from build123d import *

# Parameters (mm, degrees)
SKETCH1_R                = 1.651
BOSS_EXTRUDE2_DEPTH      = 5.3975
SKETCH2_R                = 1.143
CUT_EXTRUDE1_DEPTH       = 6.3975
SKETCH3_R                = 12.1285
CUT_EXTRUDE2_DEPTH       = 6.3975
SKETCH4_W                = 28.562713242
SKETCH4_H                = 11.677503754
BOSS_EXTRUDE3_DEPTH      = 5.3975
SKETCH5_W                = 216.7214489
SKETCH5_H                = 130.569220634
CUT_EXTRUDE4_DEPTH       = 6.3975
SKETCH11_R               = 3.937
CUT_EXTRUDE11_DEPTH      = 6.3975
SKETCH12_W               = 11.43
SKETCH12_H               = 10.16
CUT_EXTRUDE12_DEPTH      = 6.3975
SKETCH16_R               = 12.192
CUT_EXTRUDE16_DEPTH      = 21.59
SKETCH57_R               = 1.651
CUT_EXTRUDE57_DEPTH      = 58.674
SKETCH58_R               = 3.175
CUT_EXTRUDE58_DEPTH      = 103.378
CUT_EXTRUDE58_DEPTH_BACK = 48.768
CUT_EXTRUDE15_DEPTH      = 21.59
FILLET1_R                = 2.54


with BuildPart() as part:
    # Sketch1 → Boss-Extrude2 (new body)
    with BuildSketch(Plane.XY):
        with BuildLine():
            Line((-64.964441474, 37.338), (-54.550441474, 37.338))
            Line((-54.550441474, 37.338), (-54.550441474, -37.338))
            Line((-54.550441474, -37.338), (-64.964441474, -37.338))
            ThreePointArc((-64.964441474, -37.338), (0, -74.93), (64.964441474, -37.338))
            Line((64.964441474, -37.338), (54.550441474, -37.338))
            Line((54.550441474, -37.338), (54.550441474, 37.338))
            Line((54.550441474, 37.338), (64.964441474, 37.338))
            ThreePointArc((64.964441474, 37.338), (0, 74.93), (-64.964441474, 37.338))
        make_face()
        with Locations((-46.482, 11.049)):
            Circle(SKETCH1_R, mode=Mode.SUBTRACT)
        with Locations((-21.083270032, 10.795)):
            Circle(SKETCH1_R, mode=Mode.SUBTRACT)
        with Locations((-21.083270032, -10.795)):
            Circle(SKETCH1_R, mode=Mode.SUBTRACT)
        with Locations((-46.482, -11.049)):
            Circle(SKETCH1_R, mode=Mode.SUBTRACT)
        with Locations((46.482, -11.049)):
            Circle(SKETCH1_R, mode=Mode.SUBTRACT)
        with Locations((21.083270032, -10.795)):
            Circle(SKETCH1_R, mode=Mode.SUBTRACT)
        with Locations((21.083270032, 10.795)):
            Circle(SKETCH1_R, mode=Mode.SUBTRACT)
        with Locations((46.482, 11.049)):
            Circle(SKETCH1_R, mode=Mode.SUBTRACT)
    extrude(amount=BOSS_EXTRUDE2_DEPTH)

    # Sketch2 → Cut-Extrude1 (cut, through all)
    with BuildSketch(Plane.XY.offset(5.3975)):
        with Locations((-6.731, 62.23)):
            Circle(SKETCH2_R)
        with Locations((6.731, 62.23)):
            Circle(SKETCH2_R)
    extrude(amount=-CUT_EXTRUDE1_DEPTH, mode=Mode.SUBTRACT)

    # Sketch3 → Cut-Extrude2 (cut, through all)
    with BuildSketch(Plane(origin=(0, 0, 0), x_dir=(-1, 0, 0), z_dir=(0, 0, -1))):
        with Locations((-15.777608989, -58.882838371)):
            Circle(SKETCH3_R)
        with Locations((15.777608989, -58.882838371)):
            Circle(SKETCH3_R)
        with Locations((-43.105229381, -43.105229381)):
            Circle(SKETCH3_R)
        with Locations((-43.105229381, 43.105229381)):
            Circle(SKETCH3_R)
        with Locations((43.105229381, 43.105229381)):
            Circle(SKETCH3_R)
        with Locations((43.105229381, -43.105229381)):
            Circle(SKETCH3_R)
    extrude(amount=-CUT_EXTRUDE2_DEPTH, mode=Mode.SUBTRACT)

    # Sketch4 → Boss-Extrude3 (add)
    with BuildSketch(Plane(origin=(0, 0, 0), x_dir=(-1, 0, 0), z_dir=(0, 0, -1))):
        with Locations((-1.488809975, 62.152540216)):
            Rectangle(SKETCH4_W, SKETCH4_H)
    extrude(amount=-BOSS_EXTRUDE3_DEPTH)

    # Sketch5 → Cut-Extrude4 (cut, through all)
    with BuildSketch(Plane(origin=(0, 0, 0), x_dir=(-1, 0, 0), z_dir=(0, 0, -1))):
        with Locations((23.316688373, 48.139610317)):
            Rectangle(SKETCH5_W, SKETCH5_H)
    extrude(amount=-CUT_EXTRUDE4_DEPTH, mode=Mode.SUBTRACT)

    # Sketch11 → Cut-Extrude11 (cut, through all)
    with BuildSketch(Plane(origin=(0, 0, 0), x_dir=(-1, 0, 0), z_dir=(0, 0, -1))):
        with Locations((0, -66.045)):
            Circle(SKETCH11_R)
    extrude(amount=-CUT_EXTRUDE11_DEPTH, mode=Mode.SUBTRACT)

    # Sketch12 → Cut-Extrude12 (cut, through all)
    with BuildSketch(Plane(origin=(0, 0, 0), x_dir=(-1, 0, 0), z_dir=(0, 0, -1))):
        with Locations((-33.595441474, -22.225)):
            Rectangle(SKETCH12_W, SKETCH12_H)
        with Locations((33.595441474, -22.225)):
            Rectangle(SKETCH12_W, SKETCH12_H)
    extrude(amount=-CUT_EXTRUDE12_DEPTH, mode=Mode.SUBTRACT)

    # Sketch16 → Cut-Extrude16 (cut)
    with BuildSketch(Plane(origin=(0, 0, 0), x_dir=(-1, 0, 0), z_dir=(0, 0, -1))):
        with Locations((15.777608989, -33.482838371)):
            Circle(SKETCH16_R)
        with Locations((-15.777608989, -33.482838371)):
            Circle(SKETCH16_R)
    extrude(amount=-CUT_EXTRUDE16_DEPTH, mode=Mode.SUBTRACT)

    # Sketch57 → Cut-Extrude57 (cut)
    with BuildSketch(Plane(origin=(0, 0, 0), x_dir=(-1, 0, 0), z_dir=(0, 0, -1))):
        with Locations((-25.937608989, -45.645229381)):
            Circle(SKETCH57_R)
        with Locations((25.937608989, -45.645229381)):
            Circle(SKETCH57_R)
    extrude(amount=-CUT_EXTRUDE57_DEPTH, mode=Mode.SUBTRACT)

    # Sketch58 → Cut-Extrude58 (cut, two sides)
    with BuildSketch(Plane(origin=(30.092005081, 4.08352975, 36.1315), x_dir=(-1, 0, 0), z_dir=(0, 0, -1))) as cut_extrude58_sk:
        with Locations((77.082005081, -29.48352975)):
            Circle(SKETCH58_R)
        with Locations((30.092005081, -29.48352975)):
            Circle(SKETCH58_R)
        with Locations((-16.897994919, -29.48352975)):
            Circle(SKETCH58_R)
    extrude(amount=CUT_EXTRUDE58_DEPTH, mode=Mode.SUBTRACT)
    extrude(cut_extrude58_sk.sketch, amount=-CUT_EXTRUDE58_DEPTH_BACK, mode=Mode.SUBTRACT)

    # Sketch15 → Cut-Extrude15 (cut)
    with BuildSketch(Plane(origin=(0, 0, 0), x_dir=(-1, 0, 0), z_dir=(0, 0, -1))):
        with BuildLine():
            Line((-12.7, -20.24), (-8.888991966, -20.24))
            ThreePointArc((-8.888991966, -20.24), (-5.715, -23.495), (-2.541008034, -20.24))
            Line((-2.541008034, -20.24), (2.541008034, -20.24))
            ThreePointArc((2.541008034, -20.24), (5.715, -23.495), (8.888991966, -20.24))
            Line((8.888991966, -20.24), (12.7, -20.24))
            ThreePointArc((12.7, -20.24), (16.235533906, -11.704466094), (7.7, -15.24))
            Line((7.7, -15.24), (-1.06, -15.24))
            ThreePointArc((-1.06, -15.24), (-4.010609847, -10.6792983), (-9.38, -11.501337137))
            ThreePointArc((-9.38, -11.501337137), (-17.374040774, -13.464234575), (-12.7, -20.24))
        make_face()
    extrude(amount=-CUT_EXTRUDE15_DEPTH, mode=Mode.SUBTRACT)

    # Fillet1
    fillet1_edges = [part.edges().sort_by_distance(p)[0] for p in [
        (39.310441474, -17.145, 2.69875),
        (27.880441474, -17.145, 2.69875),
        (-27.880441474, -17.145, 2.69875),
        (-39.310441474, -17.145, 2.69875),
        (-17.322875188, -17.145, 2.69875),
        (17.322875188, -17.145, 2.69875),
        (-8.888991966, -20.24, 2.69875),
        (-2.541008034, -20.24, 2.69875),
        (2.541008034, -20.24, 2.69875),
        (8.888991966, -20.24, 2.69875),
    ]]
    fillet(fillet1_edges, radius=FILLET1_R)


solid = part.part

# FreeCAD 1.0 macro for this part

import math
import FreeCAD as App
import Part
import Sketcher
from FreeCAD import Vector
Q = App.Units.Quantity


def edges_at(feature, points):
    """Names of the edges that pass closest to the given points."""
    edges = feature.Shape.Edges
    near = lambda p: min(range(len(edges)), key=lambda i: edges[i].distToShape(Part.Vertex(*p))[0])
    return sorted({f"Edge{near(p) + 1}" for p in points})

doc = App.newDocument("Part")
body = doc.addObject("PartDesign::Body", "Body")

sketch1 = body.newObject("Sketcher::SketchObject", "Sketch")
sketch1.AttachmentSupport = (doc.getObject("XY_Plane"), [""])
sketch1.MapMode = "FlatFace"
sketch1.addGeometry([
    Part.LineSegment(Vector(-65, 37.3, 0), Vector(-54.6, 37.3, 0)),
    Part.LineSegment(Vector(-54.6, 37.3, 0), Vector(-54.6, -37.3, 0)),
    Part.LineSegment(Vector(-54.6, -37.3, 0), Vector(-65, -37.3, 0)),
    Part.ArcOfCircle(Part.Circle(Vector(0, 0, 0), Vector(0, 0, 1), 74.9), math.radians(-150), math.radians(-30)),
    Part.LineSegment(Vector(65, -37.3, 0), Vector(54.6, -37.3, 0)),
    Part.LineSegment(Vector(54.6, -37.3, 0), Vector(54.6, 37.3, 0)),
    Part.LineSegment(Vector(54.6, 37.3, 0), Vector(65, 37.3, 0)),
    Part.ArcOfCircle(Part.Circle(Vector(0, 0, 0), Vector(0, 0, 1), 74.9), math.radians(30), math.radians(150)),
    Part.Circle(Vector(-46.5, -11, 0), Vector(0, 0, 1), 1.7),
    Part.Circle(Vector(-21.1, -10.8, 0), Vector(0, 0, 1), 1.7),
    Part.Circle(Vector(21.1, -10.8, 0), Vector(0, 0, 1), 1.7),
    Part.Circle(Vector(46.5, -11, 0), Vector(0, 0, 1), 1.7),
    Part.Circle(Vector(-46.5, 11, 0), Vector(0, 0, 1), 1.7),
    Part.Circle(Vector(-21.1, 10.8, 0), Vector(0, 0, 1), 1.7),
    Part.Circle(Vector(21.1, 10.8, 0), Vector(0, 0, 1), 1.7),
    Part.Circle(Vector(46.5, 11, 0), Vector(0, 0, 1), 1.7),
], False)
sketch1.addConstraint([
    Sketcher.Constraint("Coincident", 0, 2, 1, 1),
    Sketcher.Constraint("Coincident", 1, 2, 2, 1),
    Sketcher.Constraint("Coincident", 2, 2, 3, 1),
    Sketcher.Constraint("Coincident", 3, 2, 4, 1),
    Sketcher.Constraint("Coincident", 4, 2, 5, 1),
    Sketcher.Constraint("Coincident", 5, 2, 6, 1),
    Sketcher.Constraint("Coincident", 6, 2, 7, 1),
    Sketcher.Constraint("Coincident", 7, 2, 0, 1),
    Sketcher.Constraint("Horizontal", 0),
    Sketcher.Constraint("Vertical", 1),
    Sketcher.Constraint("Horizontal", 2),
    Sketcher.Constraint("Horizontal", 4),
    Sketcher.Constraint("Vertical", 5),
    Sketcher.Constraint("Horizontal", 6),
    Sketcher.Constraint("Coincident", 3, 3, -1, 1),
    Sketcher.Constraint("Coincident", 7, 3, -1, 1),
    Sketcher.Constraint("Equal", 3, 7),
    Sketcher.Constraint("Equal", 8, 9),
    Sketcher.Constraint("Equal", 9, 10),
    Sketcher.Constraint("Equal", 10, 11),
    Sketcher.Constraint("Equal", 11, 12),
    Sketcher.Constraint("Equal", 12, 13),
    Sketcher.Constraint("Equal", 13, 14),
    Sketcher.Constraint("Equal", 14, 15),
    Sketcher.Constraint("Symmetric", 11, 3, 12, 3, -1, 1),
    Sketcher.Constraint("Symmetric", 10, 3, 13, 3, -1, 1),
    Sketcher.Constraint("Symmetric", 9, 3, 14, 3, -1, 1),
    Sketcher.Constraint("Symmetric", 8, 3, 15, 3, -1, 1),
    Sketcher.Constraint("Symmetric", 0, 2, 4, 2, -1, 1),
    Sketcher.Constraint("Symmetric", 9, 3, 10, 3, -2),
    Sketcher.Constraint("Symmetric", 8, 3, 11, 3, -2),
    Sketcher.Constraint("Horizontal", 2, 2, 3, 2),
    Sketcher.Constraint("Horizontal", 0, 2, 5, 2),
    Sketcher.Constraint("Diameter", 8, Q("0.13 in")),
    Sketcher.Constraint("Radius", 3, Q("2.95 in")),
    Sketcher.Constraint("DistanceX", 0, 1, 0, 2, Q("0.41 in")),
    Sketcher.Constraint("DistanceY", 1, 2, 1, 1, Q("2.94 in")),
    Sketcher.Constraint("DistanceX", 8, 3, -1, 1, Q("1.83 in")),
    Sketcher.Constraint("DistanceY", 8, 3, 9, 3, Q("0.01 in")),
    Sketcher.Constraint("DistanceY", 8, 3, 12, 3, Q("0.87 in")),
    Sketcher.Constraint("DistanceX", 9, 3, 10, 3, Q("1.6601 in")),
])
pad1 = body.newObject("PartDesign::Pad", "Pad")
pad1.Profile = sketch1
pad1.Length = Q("0.2125 in")

sketch2 = body.newObject("Sketcher::SketchObject", "Sketch001")
sketch2.AttachmentSupport = (doc.getObject("XY_Plane"), [""])
sketch2.MapMode = "FlatFace"
sketch2.AttachmentOffset = App.Placement(Vector(0, 0, 0.2125 * 25.4), App.Rotation())
sketch2.addGeometry([
    Part.Circle(Vector(-6.7, 62.2, 0), Vector(0, 0, 1), 1.1),
    Part.Circle(Vector(6.7, 62.2, 0), Vector(0, 0, 1), 1.1),
], False)
sketch2.addConstraint([
    Sketcher.Constraint("Equal", 0, 1),
    Sketcher.Constraint("Symmetric", 0, 3, 1, 3, -2),
    Sketcher.Constraint("Diameter", 0, Q("0.09 in")),
    Sketcher.Constraint("DistanceY", -1, 1, 0, 3, Q("2.45 in")),
    Sketcher.Constraint("DistanceX", 0, 3, 1, 3, Q("0.53 in")),
])
pocket1 = body.newObject("PartDesign::Pocket", "Pocket")
pocket1.Profile = sketch2
pocket1.Type = "ThroughAll"

sketch3 = body.newObject("Sketcher::SketchObject", "Sketch002")
sketch3.AttachmentSupport = (doc.getObject("XY_Plane"), [""])
sketch3.MapMode = "FlatFace"
sketch3.addGeometry([
    Part.Circle(Vector(16, -59, 0), Vector(0, 0, 1), 12),
    Part.Circle(Vector(-16, -59, 0), Vector(0, 0, 1), 12),
    Part.Circle(Vector(43, -43, 0), Vector(0, 0, 1), 12),
    Part.Circle(Vector(43, 43, 0), Vector(0, 0, 1), 12),
    Part.Circle(Vector(-43, 43, 0), Vector(0, 0, 1), 12),
    Part.Circle(Vector(-43, -43, 0), Vector(0, 0, 1), 12),
], False)
sketch3.addConstraint([
    Sketcher.Constraint("Equal", 0, 1),
    Sketcher.Constraint("Equal", 1, 2),
    Sketcher.Constraint("Equal", 2, 3),
    Sketcher.Constraint("Equal", 3, 4),
    Sketcher.Constraint("Equal", 4, 5),
    Sketcher.Constraint("Symmetric", 2, 3, 4, 3, -1, 1),
    Sketcher.Constraint("Symmetric", 3, 3, 5, 3, -1, 1),
    Sketcher.Constraint("Symmetric", 0, 3, 1, 3, -2),
    Sketcher.Constraint("Symmetric", 3, 3, 4, 3, -2),
    Sketcher.Constraint("Diameter", 0, Q("0.955 in")),
    Sketcher.Constraint("DistanceX", -1, 1, 0, 3, Q("15.777609 mm")),
    Sketcher.Constraint("DistanceY", 0, 3, -1, 1, Q("58.882838 mm")),
    Sketcher.Constraint("DistanceX", -1, 1, 2, 3, Q("43.105229 mm")),
    Sketcher.Constraint("DistanceY", 2, 3, -1, 1, Q("43.105229 mm")),
])
pocket2 = body.newObject("PartDesign::Pocket", "Pocket001")
pocket2.Profile = sketch3
pocket2.Type = "ThroughAll"
pocket2.Reversed = True

sketch4 = body.newObject("Sketcher::SketchObject", "Sketch003")
sketch4.AttachmentSupport = (doc.getObject("XY_Plane"), [""])
sketch4.MapMode = "FlatFace"
sketch4.addGeometry([
    Part.LineSegment(Vector(16, 68, 0), Vector(16, 56, 0)),
    Part.LineSegment(Vector(16, 56, 0), Vector(-13, 56, 0)),
    Part.LineSegment(Vector(-13, 56, 0), Vector(-13, 68, 0)),
    Part.LineSegment(Vector(-13, 68, 0), Vector(16, 68, 0)),
], False)
sketch4.addConstraint([
    Sketcher.Constraint("Coincident", 0, 2, 1, 1),
    Sketcher.Constraint("Coincident", 1, 2, 2, 1),
    Sketcher.Constraint("Coincident", 2, 2, 3, 1),
    Sketcher.Constraint("Coincident", 3, 2, 0, 1),
    Sketcher.Constraint("Vertical", 0),
    Sketcher.Constraint("Horizontal", 1),
    Sketcher.Constraint("Vertical", 2),
    Sketcher.Constraint("Horizontal", 3),
    Sketcher.Constraint("DistanceX", 1, 2, 1, 1, Q("28.562713 mm")),
    Sketcher.Constraint("DistanceY", 0, 2, 0, 1, Q("11.677504 mm")),
    Sketcher.Constraint("DistanceY", -1, 1, 0, 2, Q("56.313788 mm")),
    Sketcher.Constraint("DistanceX", -1, 1, 0, 2, Q("15.770167 mm")),
])
pad2 = body.newObject("PartDesign::Pad", "Pad001")
pad2.Profile = sketch4
pad2.Length = Q("0.2125 in")

sketch5 = body.newObject("Sketcher::SketchObject", "Sketch004")
sketch5.AttachmentSupport = (doc.getObject("XY_Plane"), [""])
sketch5.MapMode = "FlatFace"
sketch5.addGeometry([
    Part.LineSegment(Vector(85, 113, 0), Vector(85, -17, 0)),
    Part.LineSegment(Vector(85, -17, 0), Vector(-132, -17, 0)),
    Part.LineSegment(Vector(-132, -17, 0), Vector(-132, 113, 0)),
    Part.LineSegment(Vector(-132, 113, 0), Vector(85, 113, 0)),
], False)
sketch5.addConstraint([
    Sketcher.Constraint("Coincident", 0, 2, 1, 1),
    Sketcher.Constraint("Coincident", 1, 2, 2, 1),
    Sketcher.Constraint("Coincident", 2, 2, 3, 1),
    Sketcher.Constraint("Coincident", 3, 2, 0, 1),
    Sketcher.Constraint("Vertical", 0),
    Sketcher.Constraint("Horizontal", 1),
    Sketcher.Constraint("Vertical", 2),
    Sketcher.Constraint("Horizontal", 3),
    Sketcher.Constraint("DistanceY", 0, 2, -1, 1, Q("0.675 in")),
    Sketcher.Constraint("DistanceX", 1, 2, 1, 1, Q("216.721449 mm")),
    Sketcher.Constraint("DistanceY", 0, 2, 0, 1, Q("130.569221 mm")),
    Sketcher.Constraint("DistanceX", -1, 1, 0, 2, Q("85.044036 mm")),
])
pocket3 = body.newObject("PartDesign::Pocket", "Pocket002")
pocket3.Profile = sketch5
pocket3.Type = "ThroughAll"
pocket3.Reversed = True

sketch6 = body.newObject("Sketcher::SketchObject", "Sketch005")
sketch6.AttachmentSupport = (doc.getObject("XY_Plane"), [""])
sketch6.MapMode = "FlatFace"
sketch6.addGeometry(Part.Circle(Vector(0, -66, 0), Vector(0, 0, 1), 3.9), False)
sketch6.addConstraint([
    Sketcher.Constraint("PointOnObject", 0, 3, -2),
    Sketcher.Constraint("Diameter", 0, Q("0.31 in")),
    Sketcher.Constraint("DistanceY", 0, 3, -1, 1, Q("66.045 mm")),
])
pocket4 = body.newObject("PartDesign::Pocket", "Pocket003")
pocket4.Profile = sketch6
pocket4.Type = "ThroughAll"
pocket4.Reversed = True

sketch7 = body.newObject("Sketcher::SketchObject", "Sketch006")
sketch7.AttachmentSupport = (doc.getObject("XY_Plane"), [""])
sketch7.MapMode = "FlatFace"
sketch7.addGeometry([
    Part.LineSegment(Vector(39, -17, 0), Vector(39, -27, 0)),
    Part.LineSegment(Vector(39, -27, 0), Vector(28, -27, 0)),
    Part.LineSegment(Vector(28, -27, 0), Vector(28, -17, 0)),
    Part.LineSegment(Vector(28, -17, 0), Vector(39, -17, 0)),
    Part.LineSegment(Vector(-28, -17, 0), Vector(-28, -27, 0)),
    Part.LineSegment(Vector(-28, -27, 0), Vector(-39, -27, 0)),
    Part.LineSegment(Vector(-39, -27, 0), Vector(-39, -17, 0)),
    Part.LineSegment(Vector(-39, -17, 0), Vector(-28, -17, 0)),
], False)
sketch7.addConstraint([
    Sketcher.Constraint("Coincident", 0, 2, 1, 1),
    Sketcher.Constraint("Coincident", 1, 2, 2, 1),
    Sketcher.Constraint("Coincident", 2, 2, 3, 1),
    Sketcher.Constraint("Coincident", 3, 2, 0, 1),
    Sketcher.Constraint("Coincident", 4, 2, 5, 1),
    Sketcher.Constraint("Coincident", 5, 2, 6, 1),
    Sketcher.Constraint("Coincident", 6, 2, 7, 1),
    Sketcher.Constraint("Coincident", 7, 2, 4, 1),
    Sketcher.Constraint("Vertical", 0),
    Sketcher.Constraint("Horizontal", 1),
    Sketcher.Constraint("Vertical", 2),
    Sketcher.Constraint("Horizontal", 3),
    Sketcher.Constraint("Vertical", 4),
    Sketcher.Constraint("Horizontal", 5),
    Sketcher.Constraint("Vertical", 6),
    Sketcher.Constraint("Horizontal", 7),
    Sketcher.Constraint("Symmetric", 1, 2, 4, 2, -2),
    Sketcher.Constraint("Symmetric", 3, 2, 6, 2, -2),
    Sketcher.Constraint("DistanceY", 0, 2, 0, 1, Q("0.4 in")),
    Sketcher.Constraint("DistanceX", 1, 2, 1, 1, Q("0.45 in")),
    Sketcher.Constraint("DistanceY", 0, 2, -1, 1, Q("1.075 in")),
    Sketcher.Constraint("DistanceX", -1, 1, 0, 2, Q("39.310441 mm")),
])
pocket5 = body.newObject("PartDesign::Pocket", "Pocket004")
pocket5.Profile = sketch7
pocket5.Type = "ThroughAll"
pocket5.Reversed = True

sketch8 = body.newObject("Sketcher::SketchObject", "Sketch007")
sketch8.AttachmentSupport = (doc.getObject("XY_Plane"), [""])
sketch8.MapMode = "FlatFace"
sketch8.addGeometry([
    Part.Circle(Vector(-16, -33, 0), Vector(0, 0, 1), 12),
    Part.Circle(Vector(16, -33, 0), Vector(0, 0, 1), 12),
], False)
sketch8.addConstraint([
    Sketcher.Constraint("Equal", 0, 1),
    Sketcher.Constraint("Symmetric", 0, 3, 1, 3, -2),
    Sketcher.Constraint("Diameter", 0, Q("0.96 in")),
    Sketcher.Constraint("DistanceX", 0, 3, -1, 1, Q("15.777609 mm")),
    Sketcher.Constraint("DistanceY", 0, 3, -1, 1, Q("33.482838 mm")),
])
pocket6 = body.newObject("PartDesign::Pocket", "Pocket005")
pocket6.Profile = sketch8
pocket6.Length = Q("0.85 in")
pocket6.Reversed = True

sketch9 = body.newObject("Sketcher::SketchObject", "Sketch008")
sketch9.AttachmentSupport = (doc.getObject("XY_Plane"), [""])
sketch9.MapMode = "FlatFace"
sketch9.addGeometry([
    Part.Circle(Vector(25.9, -45.6, 0), Vector(0, 0, 1), 1.7),
    Part.Circle(Vector(-25.9, -45.6, 0), Vector(0, 0, 1), 1.7),
], False)
sketch9.addConstraint([
    Sketcher.Constraint("Equal", 0, 1),
    Sketcher.Constraint("Symmetric", 0, 3, 1, 3, -2),
    Sketcher.Constraint("Diameter", 0, Q("0.13 in")),
    Sketcher.Constraint("DistanceX", -1, 1, 0, 3, Q("25.937609 mm")),
    Sketcher.Constraint("DistanceY", 0, 3, -1, 1, Q("45.645229 mm")),
])
pocket7 = body.newObject("PartDesign::Pocket", "Pocket006")
pocket7.Profile = sketch9
pocket7.Length = Q("2.31 in")
pocket7.Reversed = True

sketch10 = body.newObject("Sketcher::SketchObject", "Sketch009")
sketch10.AttachmentSupport = (doc.getObject("XY_Plane"), [""])
sketch10.MapMode = "FlatFace"
sketch10.AttachmentOffset = App.Placement(Vector(0, 0, 1.4225 * 25.4), App.Rotation())
sketch10.addGeometry([
    Part.Circle(Vector(-47, -25.4, 0), Vector(0, 0, 1), 3.2),
    Part.Circle(Vector(0, -25.4, 0), Vector(0, 0, 1), 3.2),
    Part.Circle(Vector(47, -25.4, 0), Vector(0, 0, 1), 3.2),
], False)
sketch10.addConstraint([
    Sketcher.Constraint("Equal", 0, 1),
    Sketcher.Constraint("Equal", 1, 2),
    Sketcher.Constraint("Symmetric", 0, 3, 2, 3, -2),
    Sketcher.Constraint("PointOnObject", 1, 3, -2),
    Sketcher.Constraint("Horizontal", 0, 3, 1, 3),
    Sketcher.Constraint("Diameter", 0, Q("0.25 in")),
    Sketcher.Constraint("DistanceY", 0, 3, -1, 1, Q("1 in")),
    Sketcher.Constraint("DistanceX", 0, 3, 2, 3, Q("3.7 in")),
])
pocket8 = body.newObject("PartDesign::Pocket", "Pocket007")
pocket8.Profile = sketch10
pocket8.Type = "ThroughAll"
pocket8.Midplane = True

sketch11 = body.newObject("Sketcher::SketchObject", "Sketch010")
sketch11.AttachmentSupport = (doc.getObject("XY_Plane"), [""])
sketch11.MapMode = "FlatFace"
sketch11.addGeometry([
    Part.LineSegment(Vector(12.7, -20.2, 0), Vector(8.9, -20.2, 0)),
    Part.ArcOfCircle(Part.Circle(Vector(5.7, -20.3, 0), Vector(0, 0, 1), 3.2), math.radians(179), math.radians(361)),
    Part.LineSegment(Vector(2.5, -20.2, 0), Vector(-2.5, -20.2, 0)),
    Part.ArcOfCircle(Part.Circle(Vector(-5.7, -20.3, 0), Vector(0, 0, 1), 3.2), math.radians(179), math.radians(361)),
    Part.LineSegment(Vector(-8.9, -20.2, 0), Vector(-12.7, -20.2, 0)),
    Part.ArcOfCircle(Part.Circle(Vector(-12.7, -15.2, 0), Vector(0, 0, 1), 5), math.radians(0), math.radians(270)),
    Part.LineSegment(Vector(-7.7, -15.2, 0), Vector(1.1, -15.2, 0)),
    Part.ArcOfCircle(Part.Circle(Vector(6.1, -15.2, 0), Vector(0, 0, 1), 5), math.radians(48), math.radians(180)),
    Part.ArcOfCircle(Part.Circle(Vector(12.7, -15.2, 0), Vector(0, 0, 1), 5), math.radians(-90), math.radians(132)),
], False)
sketch11.addConstraint([
    Sketcher.Constraint("Coincident", 0, 2, 1, 2),
    Sketcher.Constraint("Coincident", 1, 1, 2, 1),
    Sketcher.Constraint("Coincident", 2, 2, 3, 2),
    Sketcher.Constraint("Coincident", 3, 1, 4, 1),
    Sketcher.Constraint("Tangent", 4, 2, 5, 2),
    Sketcher.Constraint("Coincident", 5, 1, 6, 1),
    Sketcher.Constraint("Coincident", 6, 2, 7, 2),
    Sketcher.Constraint("Coincident", 7, 1, 8, 2),
    Sketcher.Constraint("Tangent", 8, 1, 0, 1),
    Sketcher.Constraint("Horizontal", 0),
    Sketcher.Constraint("Horizontal", 2),
    Sketcher.Constraint("Horizontal", 4),
    Sketcher.Constraint("Horizontal", 6),
    Sketcher.Constraint("Equal", 1, 3),
    Sketcher.Constraint("Equal", 5, 7),
    Sketcher.Constraint("Equal", 7, 8),
    Sketcher.Constraint("Symmetric", 1, 3, 3, 3, -2),
    Sketcher.Constraint("Symmetric", 5, 3, 8, 3, -2),
    Sketcher.Constraint("Horizontal", 5, 3, 7, 3),
    Sketcher.Constraint("Horizontal", 0, 2, 1, 1),
    Sketcher.Constraint("Horizontal", 8, 3, 5, 1),
    Sketcher.Constraint("Radius", 1, Q("0.125 in")),
    Sketcher.Constraint("DistanceX", 5, 3, 8, 3, Q("1 in")),
    Sketcher.Constraint("DistanceY", 1, 3, -1, 1, Q("0.8 in")),
    Sketcher.Constraint("DistanceY", 5, 3, -1, 1, Q("0.6 in")),
    Sketcher.Constraint("Radius", 5, Q("5 mm")),
    Sketcher.Constraint("DistanceX", 3, 3, 1, 3, Q("0.45 in")),
    Sketcher.Constraint("DistanceX", 6, 1, 6, 2, Q("8.76 mm")),
])
pocket9 = body.newObject("PartDesign::Pocket", "Pocket008")
pocket9.Profile = sketch11
pocket9.Length = Q("0.85 in")
pocket9.Reversed = True
doc.recompute()

fillet = body.newObject("PartDesign::Fillet", "Fillet")
fillet.Base = (pocket9, edges_at(pocket9, [
    (39.31, -17.145, 2.699),
    (27.88, -17.145, 2.699),
    (-27.88, -17.145, 2.699),
    (-39.31, -17.145, 2.699),
    (-17.323, -17.145, 2.699),
    (17.323, -17.145, 2.699),
    (-8.889, -20.24, 2.699),
    (-2.541, -20.24, 2.699),
    (2.541, -20.24, 2.699),
    (8.889, -20.24, 2.699),
]))
fillet.Radius = Q("0.1 in")

doc.recompute()
